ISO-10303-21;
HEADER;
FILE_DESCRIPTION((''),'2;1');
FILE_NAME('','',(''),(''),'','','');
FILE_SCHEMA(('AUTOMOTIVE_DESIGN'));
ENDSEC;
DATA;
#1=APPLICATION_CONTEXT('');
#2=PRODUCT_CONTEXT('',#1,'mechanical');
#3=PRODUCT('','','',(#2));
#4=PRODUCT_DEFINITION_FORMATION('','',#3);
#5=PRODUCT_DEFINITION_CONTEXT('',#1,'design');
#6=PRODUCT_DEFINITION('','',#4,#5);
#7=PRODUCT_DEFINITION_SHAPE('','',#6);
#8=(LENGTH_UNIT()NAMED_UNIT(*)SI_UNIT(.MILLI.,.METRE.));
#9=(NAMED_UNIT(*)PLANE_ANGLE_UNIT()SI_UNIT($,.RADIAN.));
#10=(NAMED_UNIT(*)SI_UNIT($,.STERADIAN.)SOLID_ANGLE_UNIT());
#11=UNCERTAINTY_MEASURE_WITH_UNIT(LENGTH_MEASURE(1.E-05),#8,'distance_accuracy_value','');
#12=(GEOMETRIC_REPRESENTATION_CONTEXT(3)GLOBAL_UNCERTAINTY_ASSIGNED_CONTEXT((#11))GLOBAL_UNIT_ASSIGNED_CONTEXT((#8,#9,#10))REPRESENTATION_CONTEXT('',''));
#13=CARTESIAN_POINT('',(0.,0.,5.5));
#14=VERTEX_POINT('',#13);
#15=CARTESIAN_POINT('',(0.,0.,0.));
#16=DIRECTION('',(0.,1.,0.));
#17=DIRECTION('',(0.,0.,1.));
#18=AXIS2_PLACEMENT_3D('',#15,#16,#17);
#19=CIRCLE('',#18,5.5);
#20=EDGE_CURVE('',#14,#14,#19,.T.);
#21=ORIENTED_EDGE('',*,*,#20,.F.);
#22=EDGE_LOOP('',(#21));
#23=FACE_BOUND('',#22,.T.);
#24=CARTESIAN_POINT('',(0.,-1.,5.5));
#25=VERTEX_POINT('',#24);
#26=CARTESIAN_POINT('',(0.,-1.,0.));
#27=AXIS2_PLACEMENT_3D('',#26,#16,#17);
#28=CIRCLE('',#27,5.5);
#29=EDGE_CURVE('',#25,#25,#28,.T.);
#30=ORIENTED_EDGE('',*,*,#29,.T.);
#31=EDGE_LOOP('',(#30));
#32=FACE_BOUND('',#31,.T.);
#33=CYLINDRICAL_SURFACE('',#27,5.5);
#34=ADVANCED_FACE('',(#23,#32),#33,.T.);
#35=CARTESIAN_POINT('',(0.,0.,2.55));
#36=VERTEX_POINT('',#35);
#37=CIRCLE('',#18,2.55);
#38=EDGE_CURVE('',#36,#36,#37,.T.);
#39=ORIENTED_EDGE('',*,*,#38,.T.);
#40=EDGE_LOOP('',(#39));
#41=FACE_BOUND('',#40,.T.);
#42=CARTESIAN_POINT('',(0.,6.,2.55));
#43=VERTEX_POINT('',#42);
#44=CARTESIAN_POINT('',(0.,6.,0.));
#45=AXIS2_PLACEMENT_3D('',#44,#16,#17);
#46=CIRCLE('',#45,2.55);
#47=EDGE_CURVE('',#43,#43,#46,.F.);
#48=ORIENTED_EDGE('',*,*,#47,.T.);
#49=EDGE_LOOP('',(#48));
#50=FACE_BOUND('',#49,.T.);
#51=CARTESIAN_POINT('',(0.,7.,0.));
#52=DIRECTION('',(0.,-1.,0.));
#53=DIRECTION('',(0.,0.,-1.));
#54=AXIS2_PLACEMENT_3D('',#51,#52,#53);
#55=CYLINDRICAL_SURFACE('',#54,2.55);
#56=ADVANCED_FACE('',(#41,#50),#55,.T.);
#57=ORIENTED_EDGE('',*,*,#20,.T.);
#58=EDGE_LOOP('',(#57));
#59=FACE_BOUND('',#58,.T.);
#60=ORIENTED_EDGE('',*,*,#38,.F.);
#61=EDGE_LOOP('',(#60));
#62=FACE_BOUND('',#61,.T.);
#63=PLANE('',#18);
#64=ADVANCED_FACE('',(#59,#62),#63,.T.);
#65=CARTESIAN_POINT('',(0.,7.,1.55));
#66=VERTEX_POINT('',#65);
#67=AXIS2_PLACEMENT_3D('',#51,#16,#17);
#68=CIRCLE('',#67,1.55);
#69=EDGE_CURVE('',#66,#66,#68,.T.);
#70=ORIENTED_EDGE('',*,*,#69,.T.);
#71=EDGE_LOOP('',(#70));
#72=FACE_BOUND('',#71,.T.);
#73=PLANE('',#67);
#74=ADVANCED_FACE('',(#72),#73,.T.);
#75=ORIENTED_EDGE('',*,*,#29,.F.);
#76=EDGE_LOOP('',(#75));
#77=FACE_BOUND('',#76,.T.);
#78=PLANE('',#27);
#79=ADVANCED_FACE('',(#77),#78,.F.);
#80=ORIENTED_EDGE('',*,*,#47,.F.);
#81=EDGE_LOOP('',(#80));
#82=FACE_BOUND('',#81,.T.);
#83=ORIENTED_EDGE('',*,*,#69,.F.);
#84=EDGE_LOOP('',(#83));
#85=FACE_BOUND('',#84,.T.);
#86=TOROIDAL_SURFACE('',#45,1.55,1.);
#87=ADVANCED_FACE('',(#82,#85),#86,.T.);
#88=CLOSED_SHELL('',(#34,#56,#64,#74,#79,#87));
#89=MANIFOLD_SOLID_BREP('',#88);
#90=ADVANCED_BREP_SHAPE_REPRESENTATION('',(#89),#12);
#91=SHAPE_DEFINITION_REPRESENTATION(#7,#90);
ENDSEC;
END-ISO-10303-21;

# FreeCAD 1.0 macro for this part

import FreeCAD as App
import Part
import Sketcher
Q = App.Units.Quantity


def edges_at(feature, points):
    """Names of the edges that pass closest to the given points."""
    edges = feature.Shape.Edges
    near = lambda p: min(range(len(edges)), key=lambda i: edges[i].distToShape(Part.Vertex(*p))[0])
    return sorted({f"Edge{near(p) + 1}" for p in points})

doc = App.newDocument("Part")
body = doc.addObject("PartDesign::Body", "Body")

# Sketch on XZ plane
sketch1 = body.newObject("Sketcher::SketchObject", "Sketch")
sketch1.AttachmentSupport = (doc.getObject("XZ_Plane"), [""])
sketch1.MapMode = "FlatFace"
sketch1.addGeometry(Part.Circle(App.Vector(0, 0, 0), App.Vector(0, 0, 1), 2.5), False)
sketch1.addConstraint(Sketcher.Constraint("Coincident", 0, 3, -1, 1))
sketch1.addConstraint(Sketcher.Constraint("Diameter", 0, Q("5.1 mm")))
pad1 = body.newObject("PartDesign::Pad", "Pad")
pad1.Profile = sketch1
pad1.Length = 7
pad1.Reversed = True

# Sketch on XZ plane
sketch2 = body.newObject("Sketcher::SketchObject", "Sketch001")
sketch2.AttachmentSupport = (doc.getObject("XZ_Plane"), [""])
sketch2.MapMode = "FlatFace"
sketch2.addGeometry(Part.Circle(App.Vector(0, 0, 0), App.Vector(0, 0, 1), 6), False)
sketch2.addConstraint(Sketcher.Constraint("Coincident", 0, 3, -1, 1))
sketch2.addConstraint(Sketcher.Constraint("Diameter", 0, Q("11 mm")))
pad2 = body.newObject("PartDesign::Pad", "Pad001")
pad2.Profile = sketch2
pad2.Length = 1
doc.recompute()

fillet = body.newObject("PartDesign::Fillet", "Fillet")
fillet.Base = (pad2, edges_at(pad2, [(-2.55, 7, 0)]))
fillet.Radius = 1

doc.recompute()
